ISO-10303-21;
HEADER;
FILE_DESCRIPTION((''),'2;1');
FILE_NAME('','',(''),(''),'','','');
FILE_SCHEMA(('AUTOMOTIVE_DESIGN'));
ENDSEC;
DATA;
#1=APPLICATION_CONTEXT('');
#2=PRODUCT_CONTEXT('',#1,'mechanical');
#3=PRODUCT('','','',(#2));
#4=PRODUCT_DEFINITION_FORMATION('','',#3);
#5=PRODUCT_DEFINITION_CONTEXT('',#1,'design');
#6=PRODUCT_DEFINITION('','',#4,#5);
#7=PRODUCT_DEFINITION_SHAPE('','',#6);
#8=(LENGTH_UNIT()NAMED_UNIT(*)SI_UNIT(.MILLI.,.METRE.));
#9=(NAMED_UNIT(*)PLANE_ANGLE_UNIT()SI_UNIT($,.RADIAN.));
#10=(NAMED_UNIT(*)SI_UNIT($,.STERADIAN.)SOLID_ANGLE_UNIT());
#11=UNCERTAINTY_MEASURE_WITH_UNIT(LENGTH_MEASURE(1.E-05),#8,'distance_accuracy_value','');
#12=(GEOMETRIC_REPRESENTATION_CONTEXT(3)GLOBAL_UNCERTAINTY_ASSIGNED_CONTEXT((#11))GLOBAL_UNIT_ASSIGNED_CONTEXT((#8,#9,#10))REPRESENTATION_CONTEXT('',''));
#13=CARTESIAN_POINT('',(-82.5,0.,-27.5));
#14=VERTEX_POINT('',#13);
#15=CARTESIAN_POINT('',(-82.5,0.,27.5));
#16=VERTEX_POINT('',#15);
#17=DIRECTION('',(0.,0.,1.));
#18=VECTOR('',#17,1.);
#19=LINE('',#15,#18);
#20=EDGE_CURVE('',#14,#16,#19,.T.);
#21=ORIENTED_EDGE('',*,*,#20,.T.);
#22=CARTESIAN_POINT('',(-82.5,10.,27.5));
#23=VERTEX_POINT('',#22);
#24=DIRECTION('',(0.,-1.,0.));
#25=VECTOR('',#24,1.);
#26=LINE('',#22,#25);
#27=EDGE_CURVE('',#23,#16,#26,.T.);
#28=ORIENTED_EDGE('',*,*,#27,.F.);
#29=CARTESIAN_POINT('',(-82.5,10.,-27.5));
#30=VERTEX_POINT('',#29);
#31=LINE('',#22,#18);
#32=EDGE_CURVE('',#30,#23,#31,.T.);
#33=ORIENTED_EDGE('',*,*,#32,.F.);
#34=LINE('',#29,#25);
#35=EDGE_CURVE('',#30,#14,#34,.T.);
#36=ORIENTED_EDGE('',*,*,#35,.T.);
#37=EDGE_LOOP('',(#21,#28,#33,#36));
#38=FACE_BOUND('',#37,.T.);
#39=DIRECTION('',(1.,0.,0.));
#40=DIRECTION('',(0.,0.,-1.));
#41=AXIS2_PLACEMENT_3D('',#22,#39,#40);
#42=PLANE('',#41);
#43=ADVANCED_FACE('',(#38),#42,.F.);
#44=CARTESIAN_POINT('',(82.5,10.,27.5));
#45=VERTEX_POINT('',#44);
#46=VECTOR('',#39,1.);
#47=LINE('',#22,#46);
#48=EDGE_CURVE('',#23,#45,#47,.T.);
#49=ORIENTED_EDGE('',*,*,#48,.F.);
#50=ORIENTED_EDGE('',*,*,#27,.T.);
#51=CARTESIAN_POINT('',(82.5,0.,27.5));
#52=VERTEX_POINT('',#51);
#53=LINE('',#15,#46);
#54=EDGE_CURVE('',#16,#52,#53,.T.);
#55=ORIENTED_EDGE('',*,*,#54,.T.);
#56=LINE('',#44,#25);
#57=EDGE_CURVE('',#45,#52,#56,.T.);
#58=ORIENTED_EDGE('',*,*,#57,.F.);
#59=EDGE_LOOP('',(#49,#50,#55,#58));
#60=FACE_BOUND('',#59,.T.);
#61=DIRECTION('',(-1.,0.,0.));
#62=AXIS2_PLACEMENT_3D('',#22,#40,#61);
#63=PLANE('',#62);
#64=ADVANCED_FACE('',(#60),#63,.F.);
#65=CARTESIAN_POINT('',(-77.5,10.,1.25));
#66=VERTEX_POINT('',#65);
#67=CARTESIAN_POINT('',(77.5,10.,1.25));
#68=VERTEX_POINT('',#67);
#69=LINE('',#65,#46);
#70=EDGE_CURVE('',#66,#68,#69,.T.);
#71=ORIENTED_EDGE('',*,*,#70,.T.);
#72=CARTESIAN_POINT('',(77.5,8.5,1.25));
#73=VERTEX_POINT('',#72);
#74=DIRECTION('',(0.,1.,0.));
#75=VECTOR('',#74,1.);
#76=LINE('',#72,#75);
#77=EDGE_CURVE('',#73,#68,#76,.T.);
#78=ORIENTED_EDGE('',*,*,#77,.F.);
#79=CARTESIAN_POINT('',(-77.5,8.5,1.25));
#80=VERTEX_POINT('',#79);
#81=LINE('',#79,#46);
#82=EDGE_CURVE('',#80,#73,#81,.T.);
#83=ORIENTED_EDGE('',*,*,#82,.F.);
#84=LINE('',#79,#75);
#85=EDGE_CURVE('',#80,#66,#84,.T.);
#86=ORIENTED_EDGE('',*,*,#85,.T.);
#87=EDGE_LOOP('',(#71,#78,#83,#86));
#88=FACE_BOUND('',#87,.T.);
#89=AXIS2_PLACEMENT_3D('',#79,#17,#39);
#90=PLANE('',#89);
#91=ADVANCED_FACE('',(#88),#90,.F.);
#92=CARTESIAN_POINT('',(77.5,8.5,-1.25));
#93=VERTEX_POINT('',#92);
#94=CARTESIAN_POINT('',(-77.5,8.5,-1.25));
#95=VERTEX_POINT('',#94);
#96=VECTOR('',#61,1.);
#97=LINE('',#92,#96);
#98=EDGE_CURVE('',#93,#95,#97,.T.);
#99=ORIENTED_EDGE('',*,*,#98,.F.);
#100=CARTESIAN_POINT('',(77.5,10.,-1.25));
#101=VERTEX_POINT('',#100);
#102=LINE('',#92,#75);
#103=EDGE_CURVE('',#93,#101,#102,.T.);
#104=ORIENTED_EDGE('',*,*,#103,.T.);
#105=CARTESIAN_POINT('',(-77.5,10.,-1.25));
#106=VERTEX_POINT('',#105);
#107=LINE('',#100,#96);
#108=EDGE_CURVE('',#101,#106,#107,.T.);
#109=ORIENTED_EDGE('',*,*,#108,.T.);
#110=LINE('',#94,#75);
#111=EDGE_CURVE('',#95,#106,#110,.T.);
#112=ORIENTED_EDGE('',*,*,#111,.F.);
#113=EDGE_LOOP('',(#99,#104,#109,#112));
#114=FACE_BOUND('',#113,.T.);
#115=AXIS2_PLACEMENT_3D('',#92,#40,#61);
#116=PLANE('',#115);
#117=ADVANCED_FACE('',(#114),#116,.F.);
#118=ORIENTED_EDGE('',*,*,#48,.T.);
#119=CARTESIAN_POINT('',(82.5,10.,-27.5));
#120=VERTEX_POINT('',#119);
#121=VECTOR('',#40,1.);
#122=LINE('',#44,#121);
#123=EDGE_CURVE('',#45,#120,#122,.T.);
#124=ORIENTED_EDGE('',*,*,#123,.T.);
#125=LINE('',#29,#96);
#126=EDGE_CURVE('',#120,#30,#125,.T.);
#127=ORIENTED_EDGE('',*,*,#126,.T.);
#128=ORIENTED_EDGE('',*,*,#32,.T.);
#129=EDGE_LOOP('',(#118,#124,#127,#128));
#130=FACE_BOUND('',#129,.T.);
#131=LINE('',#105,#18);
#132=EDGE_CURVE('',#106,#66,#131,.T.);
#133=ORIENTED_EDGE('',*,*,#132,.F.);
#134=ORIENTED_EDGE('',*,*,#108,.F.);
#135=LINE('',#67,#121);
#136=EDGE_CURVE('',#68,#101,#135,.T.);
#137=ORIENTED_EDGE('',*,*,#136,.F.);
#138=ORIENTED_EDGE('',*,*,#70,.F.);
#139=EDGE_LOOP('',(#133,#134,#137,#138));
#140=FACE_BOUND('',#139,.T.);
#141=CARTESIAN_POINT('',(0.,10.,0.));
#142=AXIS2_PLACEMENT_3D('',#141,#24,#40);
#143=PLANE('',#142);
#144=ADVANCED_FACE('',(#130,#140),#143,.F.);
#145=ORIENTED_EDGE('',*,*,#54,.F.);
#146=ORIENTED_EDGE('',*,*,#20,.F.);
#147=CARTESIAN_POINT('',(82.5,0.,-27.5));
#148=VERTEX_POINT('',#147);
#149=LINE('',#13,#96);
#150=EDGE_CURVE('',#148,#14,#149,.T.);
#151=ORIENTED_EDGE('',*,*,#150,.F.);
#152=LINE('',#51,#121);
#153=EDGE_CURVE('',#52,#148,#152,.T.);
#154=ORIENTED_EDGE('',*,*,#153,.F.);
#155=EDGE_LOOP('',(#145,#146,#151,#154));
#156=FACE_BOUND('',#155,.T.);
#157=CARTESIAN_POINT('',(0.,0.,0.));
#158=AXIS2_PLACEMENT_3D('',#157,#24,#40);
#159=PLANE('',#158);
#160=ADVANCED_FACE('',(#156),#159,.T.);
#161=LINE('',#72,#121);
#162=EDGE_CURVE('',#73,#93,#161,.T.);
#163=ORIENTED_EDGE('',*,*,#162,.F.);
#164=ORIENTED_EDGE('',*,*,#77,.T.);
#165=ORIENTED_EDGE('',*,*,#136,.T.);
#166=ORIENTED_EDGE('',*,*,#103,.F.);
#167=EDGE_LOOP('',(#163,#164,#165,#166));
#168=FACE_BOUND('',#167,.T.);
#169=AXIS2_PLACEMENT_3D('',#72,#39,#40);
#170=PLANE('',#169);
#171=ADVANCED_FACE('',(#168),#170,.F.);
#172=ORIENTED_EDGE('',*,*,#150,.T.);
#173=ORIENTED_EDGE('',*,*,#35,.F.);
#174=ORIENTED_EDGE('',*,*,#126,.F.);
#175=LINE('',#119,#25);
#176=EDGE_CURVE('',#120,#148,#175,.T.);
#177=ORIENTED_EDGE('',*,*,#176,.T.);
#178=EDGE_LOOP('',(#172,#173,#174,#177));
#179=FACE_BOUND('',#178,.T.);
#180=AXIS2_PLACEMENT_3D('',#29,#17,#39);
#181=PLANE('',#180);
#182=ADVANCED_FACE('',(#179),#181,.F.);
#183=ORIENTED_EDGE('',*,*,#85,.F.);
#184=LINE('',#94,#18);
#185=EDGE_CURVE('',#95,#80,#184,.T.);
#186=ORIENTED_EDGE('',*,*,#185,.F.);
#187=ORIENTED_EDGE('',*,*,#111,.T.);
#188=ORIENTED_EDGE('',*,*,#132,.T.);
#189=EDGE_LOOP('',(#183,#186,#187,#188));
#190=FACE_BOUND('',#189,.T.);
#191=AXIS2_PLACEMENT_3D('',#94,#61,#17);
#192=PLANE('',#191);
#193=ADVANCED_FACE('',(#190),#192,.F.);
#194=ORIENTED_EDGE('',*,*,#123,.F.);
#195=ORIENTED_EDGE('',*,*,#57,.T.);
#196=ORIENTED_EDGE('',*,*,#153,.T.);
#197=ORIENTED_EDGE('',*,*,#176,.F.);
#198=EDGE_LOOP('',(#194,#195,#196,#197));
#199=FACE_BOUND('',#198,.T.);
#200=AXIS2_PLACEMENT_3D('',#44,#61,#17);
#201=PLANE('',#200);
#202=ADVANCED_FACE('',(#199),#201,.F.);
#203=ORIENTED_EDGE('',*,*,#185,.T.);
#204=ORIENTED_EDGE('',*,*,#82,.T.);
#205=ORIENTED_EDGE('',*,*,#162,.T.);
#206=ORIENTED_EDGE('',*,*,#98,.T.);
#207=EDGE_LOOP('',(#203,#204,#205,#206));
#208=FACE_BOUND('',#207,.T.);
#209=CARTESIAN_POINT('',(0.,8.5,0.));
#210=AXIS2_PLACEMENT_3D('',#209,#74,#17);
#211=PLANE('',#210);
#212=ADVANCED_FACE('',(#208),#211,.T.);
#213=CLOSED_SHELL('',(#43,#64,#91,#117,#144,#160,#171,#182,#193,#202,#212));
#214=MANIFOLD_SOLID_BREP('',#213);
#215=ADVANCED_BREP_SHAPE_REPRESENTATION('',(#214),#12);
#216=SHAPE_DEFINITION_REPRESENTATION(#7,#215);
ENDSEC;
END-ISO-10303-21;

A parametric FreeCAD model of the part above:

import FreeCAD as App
import Part
import Sketcher

V = App.Vector


def add_polygon(sketch, points):
    """Adds a closed chain of lines whose ends are joined by coincident constraints."""
    first, n = sketch.GeometryCount, len(points)
    for a, b in zip(points, points[1:] + points[:1]):
        sketch.addGeometry(Part.LineSegment(App.Vector(*a, 0), App.Vector(*b, 0)), False)
    for i in range(n):
        sketch.addConstraint(Sketcher.Constraint("Coincident", first + i, 2, first + (i + 1) % n, 1))

doc = App.newDocument("Part")
params = doc.addObject("Spreadsheet::Sheet", "Params")
for row, (alias, value) in enumerate([
    ("sketch1_width", "165 mm"),
    ("sketch1_height", "55 mm"),
    ("pad1_length", "10 mm"),
    ("sketch2_width", "155 mm"),
    ("sketch2_height", "2.5 mm"),
    ("pocket1_length", "1.5 mm"),
], start=1):
    params.set(f"A{row}", alias)
    params.set(f"B{row}", "=" + value)
    params.setAlias(f"B{row}", alias)

body = doc.addObject("PartDesign::Body", "Body")

# Sketch on XZ plane
sketch1 = body.newObject("Sketcher::SketchObject", "Sketch")
sketch1.AttachmentSupport = (doc.getObject("XZ_Plane"), [""])
sketch1.MapMode = "FlatFace"
add_polygon(sketch1, [(-82, -28), (-82, 28), (82, 28), (82, -28)])  # lines 0-3
sketch1.addConstraint([
    Sketcher.Constraint("Vertical", 0),
    Sketcher.Constraint("Horizontal", 1),
    Sketcher.Constraint("Vertical", 2),
    Sketcher.Constraint("Horizontal", 3),
    Sketcher.Constraint("Symmetric", 0, 2, 2, 2, -1, 1),
    Sketcher.Constraint("DistanceX", 1, 1, 1, 2, 165.0),
    Sketcher.Constraint("DistanceY", 0, 1, 0, 2, 55.0),
])
sketch1.setExpression("Constraints[9]", "Params.sketch1_width")
sketch1.setExpression("Constraints[10]", "Params.sketch1_height")
pad1 = body.newObject("PartDesign::Pad", "Pad")
pad1.Profile = sketch1
pad1.setExpression("Length", "Params.pad1_length")
pad1.Reversed = True

# Sketch on XZ plane
sketch2 = body.newObject("Sketcher::SketchObject", "Sketch001")
sketch2.AttachmentSupport = (doc.getObject("XZ_Plane"), [""])
sketch2.MapMode = "FlatFace"
sketch2.AttachmentOffset = App.Placement(V(0, 0, -10), App.Rotation())
add_polygon(sketch2, [(-77.5, -1.2), (-77.5, 1.2), (77.5, 1.2), (77.5, -1.2)])  # lines 0-3
sketch2.addConstraint([
    Sketcher.Constraint("Vertical", 0),
    Sketcher.Constraint("Horizontal", 1),
    Sketcher.Constraint("Vertical", 2),
    Sketcher.Constraint("Horizontal", 3),
    Sketcher.Constraint("Symmetric", 0, 2, 2, 2, -1, 1),
    Sketcher.Constraint("DistanceX", 1, 1, 1, 2, 155.0),
    Sketcher.Constraint("DistanceY", 0, 1, 0, 2, 2.5),
])
sketch2.setExpression("Constraints[9]", "Params.sketch2_width")
sketch2.setExpression("Constraints[10]", "Params.sketch2_height")
pocket1 = body.newObject("PartDesign::Pocket", "Pocket")
pocket1.Profile = sketch2
pocket1.setExpression("Length", "Params.pocket1_length")
pocket1.Reversed = True

doc.recompute()
